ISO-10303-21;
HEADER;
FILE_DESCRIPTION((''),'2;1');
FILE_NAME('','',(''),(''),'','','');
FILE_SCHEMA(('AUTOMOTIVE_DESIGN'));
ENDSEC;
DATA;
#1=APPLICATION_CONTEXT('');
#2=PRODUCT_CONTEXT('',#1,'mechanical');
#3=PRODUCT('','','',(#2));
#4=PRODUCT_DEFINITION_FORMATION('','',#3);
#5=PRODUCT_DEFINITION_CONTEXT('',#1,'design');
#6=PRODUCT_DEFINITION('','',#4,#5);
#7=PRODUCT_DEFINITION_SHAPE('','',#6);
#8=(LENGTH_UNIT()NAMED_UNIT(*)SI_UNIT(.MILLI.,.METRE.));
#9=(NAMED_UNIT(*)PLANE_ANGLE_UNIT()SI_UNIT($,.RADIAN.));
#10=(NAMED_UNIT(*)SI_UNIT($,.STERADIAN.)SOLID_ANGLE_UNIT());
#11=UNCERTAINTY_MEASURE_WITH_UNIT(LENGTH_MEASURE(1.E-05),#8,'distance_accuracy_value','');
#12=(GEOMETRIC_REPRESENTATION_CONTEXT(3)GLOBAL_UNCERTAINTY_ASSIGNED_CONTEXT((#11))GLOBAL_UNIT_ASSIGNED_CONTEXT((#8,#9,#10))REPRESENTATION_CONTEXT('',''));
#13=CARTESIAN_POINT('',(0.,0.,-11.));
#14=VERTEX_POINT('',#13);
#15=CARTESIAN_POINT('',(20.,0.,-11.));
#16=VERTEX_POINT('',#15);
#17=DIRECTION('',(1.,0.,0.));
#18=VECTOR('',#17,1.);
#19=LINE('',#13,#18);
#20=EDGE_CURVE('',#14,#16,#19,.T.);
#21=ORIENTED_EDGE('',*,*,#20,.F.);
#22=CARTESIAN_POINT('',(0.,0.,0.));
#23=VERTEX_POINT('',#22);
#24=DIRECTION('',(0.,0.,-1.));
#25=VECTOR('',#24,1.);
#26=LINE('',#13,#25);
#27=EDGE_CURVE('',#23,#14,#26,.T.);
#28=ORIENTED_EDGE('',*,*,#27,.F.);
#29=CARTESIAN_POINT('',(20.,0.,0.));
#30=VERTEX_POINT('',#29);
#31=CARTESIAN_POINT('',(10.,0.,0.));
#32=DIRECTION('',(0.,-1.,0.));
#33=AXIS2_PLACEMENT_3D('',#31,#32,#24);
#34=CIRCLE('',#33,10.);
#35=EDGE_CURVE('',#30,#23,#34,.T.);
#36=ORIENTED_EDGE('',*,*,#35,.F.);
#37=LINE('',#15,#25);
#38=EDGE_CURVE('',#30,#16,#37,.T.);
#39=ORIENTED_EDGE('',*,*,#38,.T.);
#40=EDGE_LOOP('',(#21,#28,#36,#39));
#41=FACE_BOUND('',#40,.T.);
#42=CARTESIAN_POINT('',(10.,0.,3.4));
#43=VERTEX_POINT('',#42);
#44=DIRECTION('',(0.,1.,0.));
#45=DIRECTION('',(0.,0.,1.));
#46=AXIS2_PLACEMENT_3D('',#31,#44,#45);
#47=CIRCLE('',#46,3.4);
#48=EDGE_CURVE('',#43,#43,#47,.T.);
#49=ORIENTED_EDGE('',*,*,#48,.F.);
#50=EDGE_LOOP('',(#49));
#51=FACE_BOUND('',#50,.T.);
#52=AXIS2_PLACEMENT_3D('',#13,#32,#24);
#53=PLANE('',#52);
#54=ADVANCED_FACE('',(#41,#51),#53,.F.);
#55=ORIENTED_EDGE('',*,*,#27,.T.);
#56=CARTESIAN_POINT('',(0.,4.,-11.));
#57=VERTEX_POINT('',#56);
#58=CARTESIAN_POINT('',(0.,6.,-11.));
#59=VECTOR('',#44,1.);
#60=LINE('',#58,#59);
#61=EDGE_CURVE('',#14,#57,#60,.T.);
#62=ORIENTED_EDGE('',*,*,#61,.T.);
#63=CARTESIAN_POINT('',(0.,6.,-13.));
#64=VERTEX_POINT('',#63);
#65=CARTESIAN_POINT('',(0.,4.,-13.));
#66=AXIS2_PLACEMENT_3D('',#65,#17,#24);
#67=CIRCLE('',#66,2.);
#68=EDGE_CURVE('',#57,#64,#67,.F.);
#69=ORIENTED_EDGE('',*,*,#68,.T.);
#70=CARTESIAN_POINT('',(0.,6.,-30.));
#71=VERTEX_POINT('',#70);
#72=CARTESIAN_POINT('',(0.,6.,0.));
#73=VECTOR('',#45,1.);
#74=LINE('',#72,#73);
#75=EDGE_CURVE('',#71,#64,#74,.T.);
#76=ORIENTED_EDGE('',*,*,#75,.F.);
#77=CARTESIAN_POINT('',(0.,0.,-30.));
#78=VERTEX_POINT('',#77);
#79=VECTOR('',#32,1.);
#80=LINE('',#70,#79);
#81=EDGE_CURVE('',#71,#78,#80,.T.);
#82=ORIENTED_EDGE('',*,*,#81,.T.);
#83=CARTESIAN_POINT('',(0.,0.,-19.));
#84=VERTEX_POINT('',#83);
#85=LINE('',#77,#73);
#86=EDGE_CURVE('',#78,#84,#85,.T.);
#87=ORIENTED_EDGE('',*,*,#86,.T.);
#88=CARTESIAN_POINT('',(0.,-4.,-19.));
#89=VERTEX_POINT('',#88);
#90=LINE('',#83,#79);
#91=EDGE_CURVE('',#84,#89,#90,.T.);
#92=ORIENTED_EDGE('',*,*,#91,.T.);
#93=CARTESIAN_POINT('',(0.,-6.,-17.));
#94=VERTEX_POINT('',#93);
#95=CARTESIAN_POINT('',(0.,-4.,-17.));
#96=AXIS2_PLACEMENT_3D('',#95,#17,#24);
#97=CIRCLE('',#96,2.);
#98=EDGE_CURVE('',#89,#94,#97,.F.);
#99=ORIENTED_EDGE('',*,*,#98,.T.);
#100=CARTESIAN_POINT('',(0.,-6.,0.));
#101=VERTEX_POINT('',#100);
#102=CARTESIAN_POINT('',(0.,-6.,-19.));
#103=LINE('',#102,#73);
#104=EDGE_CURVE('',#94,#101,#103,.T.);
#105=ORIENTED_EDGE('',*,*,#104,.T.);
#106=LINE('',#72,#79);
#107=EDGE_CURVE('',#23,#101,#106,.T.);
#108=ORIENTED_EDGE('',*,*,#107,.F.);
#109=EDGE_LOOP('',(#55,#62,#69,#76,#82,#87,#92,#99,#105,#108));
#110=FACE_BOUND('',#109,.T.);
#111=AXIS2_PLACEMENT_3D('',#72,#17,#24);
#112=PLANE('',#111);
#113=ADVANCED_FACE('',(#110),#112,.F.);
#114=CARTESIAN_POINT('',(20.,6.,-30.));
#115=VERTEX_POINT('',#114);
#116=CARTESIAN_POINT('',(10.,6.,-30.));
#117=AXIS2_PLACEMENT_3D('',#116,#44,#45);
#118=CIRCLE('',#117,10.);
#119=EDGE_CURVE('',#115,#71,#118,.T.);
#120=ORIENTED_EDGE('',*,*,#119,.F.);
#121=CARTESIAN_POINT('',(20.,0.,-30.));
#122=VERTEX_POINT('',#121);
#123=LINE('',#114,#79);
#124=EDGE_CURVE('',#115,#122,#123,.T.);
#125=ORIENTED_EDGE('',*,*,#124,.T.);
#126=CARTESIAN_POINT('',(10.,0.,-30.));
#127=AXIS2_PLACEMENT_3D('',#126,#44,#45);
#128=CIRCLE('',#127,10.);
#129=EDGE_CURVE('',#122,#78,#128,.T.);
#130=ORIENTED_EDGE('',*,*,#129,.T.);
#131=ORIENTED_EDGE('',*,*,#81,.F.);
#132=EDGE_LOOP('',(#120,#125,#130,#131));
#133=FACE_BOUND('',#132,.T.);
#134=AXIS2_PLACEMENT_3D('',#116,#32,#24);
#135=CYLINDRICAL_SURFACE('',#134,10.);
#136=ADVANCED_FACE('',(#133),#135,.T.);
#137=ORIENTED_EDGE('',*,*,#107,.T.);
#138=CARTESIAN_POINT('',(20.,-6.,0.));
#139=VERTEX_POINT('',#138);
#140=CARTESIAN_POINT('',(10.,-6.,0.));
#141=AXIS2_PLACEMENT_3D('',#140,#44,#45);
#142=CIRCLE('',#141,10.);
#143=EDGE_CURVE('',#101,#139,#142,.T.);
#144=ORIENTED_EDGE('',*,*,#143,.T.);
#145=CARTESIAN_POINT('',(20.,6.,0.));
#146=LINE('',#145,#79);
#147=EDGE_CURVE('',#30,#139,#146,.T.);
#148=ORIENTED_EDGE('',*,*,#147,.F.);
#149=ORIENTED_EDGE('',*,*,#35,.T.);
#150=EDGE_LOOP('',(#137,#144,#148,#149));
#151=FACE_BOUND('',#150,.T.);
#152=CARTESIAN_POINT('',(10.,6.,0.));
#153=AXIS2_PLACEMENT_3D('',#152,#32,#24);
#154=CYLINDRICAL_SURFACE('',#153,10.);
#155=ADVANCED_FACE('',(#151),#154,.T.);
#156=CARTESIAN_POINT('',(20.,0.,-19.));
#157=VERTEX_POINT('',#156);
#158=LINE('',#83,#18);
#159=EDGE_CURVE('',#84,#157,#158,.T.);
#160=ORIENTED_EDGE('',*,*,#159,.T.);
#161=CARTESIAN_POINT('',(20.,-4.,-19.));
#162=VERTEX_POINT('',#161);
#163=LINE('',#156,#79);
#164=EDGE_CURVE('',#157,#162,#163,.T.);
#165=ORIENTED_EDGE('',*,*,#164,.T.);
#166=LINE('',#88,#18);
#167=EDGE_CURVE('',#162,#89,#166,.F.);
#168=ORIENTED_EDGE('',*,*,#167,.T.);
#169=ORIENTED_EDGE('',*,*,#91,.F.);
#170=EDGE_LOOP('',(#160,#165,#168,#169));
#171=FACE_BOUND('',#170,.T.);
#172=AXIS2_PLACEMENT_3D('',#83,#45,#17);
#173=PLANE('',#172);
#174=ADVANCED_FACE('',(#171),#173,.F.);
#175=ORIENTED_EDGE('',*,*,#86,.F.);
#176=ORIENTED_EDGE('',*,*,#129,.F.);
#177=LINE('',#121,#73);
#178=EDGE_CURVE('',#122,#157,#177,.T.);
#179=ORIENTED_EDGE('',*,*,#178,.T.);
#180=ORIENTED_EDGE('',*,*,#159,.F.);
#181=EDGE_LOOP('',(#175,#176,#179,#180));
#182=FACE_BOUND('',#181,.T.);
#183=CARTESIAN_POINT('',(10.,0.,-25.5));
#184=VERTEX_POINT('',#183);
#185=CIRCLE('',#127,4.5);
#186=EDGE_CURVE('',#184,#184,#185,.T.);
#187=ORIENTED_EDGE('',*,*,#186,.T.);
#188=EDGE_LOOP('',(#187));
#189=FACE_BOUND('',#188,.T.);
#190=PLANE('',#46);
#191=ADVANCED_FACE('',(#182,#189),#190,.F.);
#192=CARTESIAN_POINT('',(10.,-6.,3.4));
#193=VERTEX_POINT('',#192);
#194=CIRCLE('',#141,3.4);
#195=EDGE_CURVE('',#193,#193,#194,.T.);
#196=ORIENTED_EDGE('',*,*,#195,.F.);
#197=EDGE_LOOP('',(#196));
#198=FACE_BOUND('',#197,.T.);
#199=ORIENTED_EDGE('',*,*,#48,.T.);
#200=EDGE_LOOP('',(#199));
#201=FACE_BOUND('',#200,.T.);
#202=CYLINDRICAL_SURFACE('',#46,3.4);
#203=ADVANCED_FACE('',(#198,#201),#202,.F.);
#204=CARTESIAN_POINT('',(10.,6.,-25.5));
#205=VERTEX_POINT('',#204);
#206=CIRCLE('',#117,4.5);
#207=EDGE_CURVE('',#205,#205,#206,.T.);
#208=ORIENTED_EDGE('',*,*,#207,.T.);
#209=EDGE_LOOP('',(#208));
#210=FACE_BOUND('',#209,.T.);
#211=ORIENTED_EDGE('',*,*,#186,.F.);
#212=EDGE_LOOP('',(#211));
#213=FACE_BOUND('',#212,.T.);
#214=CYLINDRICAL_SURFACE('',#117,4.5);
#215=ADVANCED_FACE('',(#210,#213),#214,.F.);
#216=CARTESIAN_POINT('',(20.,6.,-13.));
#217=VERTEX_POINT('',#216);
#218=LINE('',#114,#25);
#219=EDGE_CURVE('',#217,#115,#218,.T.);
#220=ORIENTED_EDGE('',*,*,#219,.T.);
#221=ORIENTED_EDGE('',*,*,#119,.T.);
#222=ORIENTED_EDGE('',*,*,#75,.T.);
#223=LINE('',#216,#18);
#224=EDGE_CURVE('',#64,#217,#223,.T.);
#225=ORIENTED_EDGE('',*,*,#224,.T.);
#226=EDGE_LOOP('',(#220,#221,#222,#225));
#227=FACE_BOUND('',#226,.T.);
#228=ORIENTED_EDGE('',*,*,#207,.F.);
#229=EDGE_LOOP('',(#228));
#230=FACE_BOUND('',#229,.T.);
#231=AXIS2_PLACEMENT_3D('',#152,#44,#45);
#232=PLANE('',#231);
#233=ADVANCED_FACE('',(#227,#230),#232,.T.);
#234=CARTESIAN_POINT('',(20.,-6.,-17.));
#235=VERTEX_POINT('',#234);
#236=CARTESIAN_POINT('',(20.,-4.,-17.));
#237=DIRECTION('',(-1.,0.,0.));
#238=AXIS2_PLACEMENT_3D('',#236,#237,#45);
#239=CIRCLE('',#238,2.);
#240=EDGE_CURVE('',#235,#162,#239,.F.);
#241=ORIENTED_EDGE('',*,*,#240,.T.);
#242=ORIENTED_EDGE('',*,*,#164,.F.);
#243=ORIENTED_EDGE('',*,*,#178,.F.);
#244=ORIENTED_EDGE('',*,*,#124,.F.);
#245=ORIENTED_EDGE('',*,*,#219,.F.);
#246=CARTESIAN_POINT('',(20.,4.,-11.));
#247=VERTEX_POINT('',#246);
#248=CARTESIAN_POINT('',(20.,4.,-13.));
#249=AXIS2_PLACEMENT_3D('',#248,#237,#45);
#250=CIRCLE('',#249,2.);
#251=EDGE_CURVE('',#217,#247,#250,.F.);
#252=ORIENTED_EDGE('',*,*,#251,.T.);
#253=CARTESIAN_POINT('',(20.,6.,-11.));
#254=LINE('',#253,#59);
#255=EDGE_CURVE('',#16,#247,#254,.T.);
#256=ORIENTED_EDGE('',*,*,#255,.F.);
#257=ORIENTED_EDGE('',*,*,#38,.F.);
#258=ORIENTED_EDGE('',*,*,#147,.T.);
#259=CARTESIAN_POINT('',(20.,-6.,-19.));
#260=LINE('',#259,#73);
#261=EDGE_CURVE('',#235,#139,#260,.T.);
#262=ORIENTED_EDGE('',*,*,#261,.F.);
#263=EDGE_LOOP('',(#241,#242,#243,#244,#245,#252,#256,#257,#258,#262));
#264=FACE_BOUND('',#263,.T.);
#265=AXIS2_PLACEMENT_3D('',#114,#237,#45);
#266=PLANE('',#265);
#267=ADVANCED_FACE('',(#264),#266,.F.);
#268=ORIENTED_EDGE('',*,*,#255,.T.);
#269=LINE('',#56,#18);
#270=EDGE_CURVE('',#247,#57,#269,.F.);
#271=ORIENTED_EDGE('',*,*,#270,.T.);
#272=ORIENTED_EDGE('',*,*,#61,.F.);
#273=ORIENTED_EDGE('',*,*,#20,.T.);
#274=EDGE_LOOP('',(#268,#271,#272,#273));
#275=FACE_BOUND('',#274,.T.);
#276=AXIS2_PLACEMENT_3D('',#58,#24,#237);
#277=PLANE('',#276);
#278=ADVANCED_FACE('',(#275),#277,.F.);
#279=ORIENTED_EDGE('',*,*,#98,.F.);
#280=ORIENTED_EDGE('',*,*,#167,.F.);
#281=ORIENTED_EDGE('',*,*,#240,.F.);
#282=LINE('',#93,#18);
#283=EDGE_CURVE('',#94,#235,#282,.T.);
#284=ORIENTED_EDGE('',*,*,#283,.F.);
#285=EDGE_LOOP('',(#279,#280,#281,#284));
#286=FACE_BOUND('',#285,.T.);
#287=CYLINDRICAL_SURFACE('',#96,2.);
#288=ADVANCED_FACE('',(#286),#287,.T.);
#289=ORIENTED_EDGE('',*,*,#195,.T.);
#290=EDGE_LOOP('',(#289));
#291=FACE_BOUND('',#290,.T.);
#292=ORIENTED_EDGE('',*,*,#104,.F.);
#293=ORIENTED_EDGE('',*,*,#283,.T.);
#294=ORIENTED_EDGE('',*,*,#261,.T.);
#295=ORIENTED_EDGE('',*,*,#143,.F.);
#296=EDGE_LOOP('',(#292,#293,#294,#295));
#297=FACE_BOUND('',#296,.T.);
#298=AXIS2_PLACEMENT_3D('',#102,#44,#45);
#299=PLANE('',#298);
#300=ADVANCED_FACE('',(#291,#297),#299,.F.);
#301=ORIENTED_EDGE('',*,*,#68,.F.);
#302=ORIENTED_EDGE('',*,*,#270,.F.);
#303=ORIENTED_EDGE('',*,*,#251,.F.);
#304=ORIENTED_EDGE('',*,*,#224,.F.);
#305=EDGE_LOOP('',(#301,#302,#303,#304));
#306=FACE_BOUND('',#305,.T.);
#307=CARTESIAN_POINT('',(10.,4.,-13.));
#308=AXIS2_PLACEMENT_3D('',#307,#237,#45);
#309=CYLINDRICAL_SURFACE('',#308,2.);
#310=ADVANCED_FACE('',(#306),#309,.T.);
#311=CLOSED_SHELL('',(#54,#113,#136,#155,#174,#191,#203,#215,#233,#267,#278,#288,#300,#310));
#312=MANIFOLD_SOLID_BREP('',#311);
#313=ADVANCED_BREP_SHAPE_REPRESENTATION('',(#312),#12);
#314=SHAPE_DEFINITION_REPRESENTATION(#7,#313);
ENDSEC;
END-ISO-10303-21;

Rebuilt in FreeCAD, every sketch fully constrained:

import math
import FreeCAD as App
import Part
import Sketcher
Q = App.Units.Quantity


def edges_at(feature, points):
    """Names of the edges that pass closest to the given points."""
    edges = feature.Shape.Edges
    near = lambda p: min(range(len(edges)), key=lambda i: edges[i].distToShape(Part.Vertex(*p))[0])
    return sorted({f"Edge{near(p) + 1}" for p in points})

doc = App.newDocument("Part")
body = doc.addObject("PartDesign::Body", "Body")

# Sketch on XZ plane
sketch1 = doc.addObject("Sketcher::SketchObject", "Sketch")
body.addObject(sketch1)
sketch1.AttachmentSupport = (doc.XZ_Plane, [""])
sketch1.MapMode = "FlatFace"
sketch1.addGeometry([
    Part.LineSegment(App.Vector(0, -30, 0), App.Vector(0, 0, 0)),
    Part.ArcOfCircle(Part.Circle(App.Vector(10, 0, 0), App.Vector(0, 0, 1), 10), math.radians(0), math.radians(180)),
    Part.LineSegment(App.Vector(20, 0, 0), App.Vector(20, -30, 0)),
    Part.ArcOfCircle(Part.Circle(App.Vector(10, -30, 0), App.Vector(0, 0, 1), 10), math.radians(180), math.radians(360)),
], False)
sketch1.addConstraint([
    Sketcher.Constraint("Tangent", 0, 2, 1, 2),
    Sketcher.Constraint("Tangent", 1, 1, 2, 1),
    Sketcher.Constraint("Tangent", 2, 2, 3, 2),
    Sketcher.Constraint("Tangent", 3, 1, 0, 1),
    Sketcher.Constraint("Vertical", 0),
    Sketcher.Constraint("Vertical", 2),
    Sketcher.Constraint("Coincident", 0, 2, -1, 1),
    Sketcher.Constraint("Radius", 1, Q("10 mm")),
    Sketcher.Constraint("DistanceY", 0, 1, 0, 2, Q("30 mm")),
])
pad1 = doc.addObject("PartDesign::Pad", "Pad")
body.addObject(pad1)
pad1.Profile = sketch1
pad1.Length = 6
pad1.Reversed = True

# Sketch on XZ plane
sketch2 = doc.addObject("Sketcher::SketchObject", "Sketch001")
body.addObject(sketch2)
sketch2.AttachmentSupport = (doc.XZ_Plane, [""])
sketch2.MapMode = "FlatFace"
sketch2.addGeometry([
    Part.LineSegment(App.Vector(0, -30, 0), App.Vector(20, -30, 0)),
    Part.LineSegment(App.Vector(20, -30, 0), App.Vector(20, 0, 0)),
    Part.ArcOfCircle(Part.Circle(App.Vector(10, 0, 0), App.Vector(0, 0, 1), 10), math.radians(0), math.radians(180)),
    Part.LineSegment(App.Vector(0, 0, 0), App.Vector(0, -30, 0)),
], False)
sketch2.addConstraint([
    Sketcher.Constraint("Coincident", 0, 2, 1, 1),
    Sketcher.Constraint("Tangent", 1, 2, 2, 1),
    Sketcher.Constraint("Tangent", 2, 2, 3, 1),
    Sketcher.Constraint("Coincident", 3, 2, 0, 1),
    Sketcher.Constraint("Horizontal", 0),
    Sketcher.Constraint("Vertical", 1),
    Sketcher.Constraint("Vertical", 3),
    Sketcher.Constraint("Coincident", 2, 2, -1, 1),
    Sketcher.Constraint("Radius", 2, Q("10 mm")),
    Sketcher.Constraint("DistanceY", 1, 1, 1, 2, Q("30 mm")),
])
pad2 = doc.addObject("PartDesign::Pad", "Pad001")
body.addObject(pad2)
pad2.Profile = sketch2
pad2.Length = 12

# Sketch on YZ plane
sketch3 = doc.addObject("Sketcher::SketchObject", "Sketch002")
body.addObject(sketch3)
sketch3.AttachmentSupport = (doc.YZ_Plane, [""])
sketch3.MapMode = "FlatFace"
sketch3.AttachmentOffset = App.Placement(App.Vector(0, 0, 20), App.Rotation())
sketch3.addGeometry([
    Part.LineSegment(App.Vector(6, 10, 0), App.Vector(0, 10, 0)),  # 0
    Part.LineSegment(App.Vector(0, 10, 0), App.Vector(0, -11, 0)),  # 1
    Part.LineSegment(App.Vector(0, -11, 0), App.Vector(6, -11, 0)),  # 2
    Part.LineSegment(App.Vector(6, -11, 0), App.Vector(6, 10, 0)),  # 3
    Part.LineSegment(App.Vector(0, -30, 0), App.Vector(0, -19, 0)),  # 4
    Part.LineSegment(App.Vector(0, -19, 0), App.Vector(-6, -19, 0)),  # 5
    Part.LineSegment(App.Vector(-6, -19, 0), App.Vector(-6, 10, 0)),  # 6
    Part.LineSegment(App.Vector(-6, 10, 0), App.Vector(-12, 10, 0)),  # 7
    Part.LineSegment(App.Vector(-12, 10, 0), App.Vector(-12, -30, 0)),  # 8
    Part.LineSegment(App.Vector(-12, -30, 0), App.Vector(0, -30, 0)),  # 9
], False)
sketch3.addConstraint([
    Sketcher.Constraint("Coincident", 0, 2, 1, 1),
    Sketcher.Constraint("Coincident", 1, 2, 2, 1),
    Sketcher.Constraint("Coincident", 2, 2, 3, 1),
    Sketcher.Constraint("Coincident", 3, 2, 0, 1),
    Sketcher.Constraint("Coincident", 4, 2, 5, 1),
    Sketcher.Constraint("Coincident", 5, 2, 6, 1),
    Sketcher.Constraint("Coincident", 6, 2, 7, 1),
    Sketcher.Constraint("Coincident", 7, 2, 8, 1),
    Sketcher.Constraint("Coincident", 8, 2, 9, 1),
    Sketcher.Constraint("Coincident", 9, 2, 4, 1),
    Sketcher.Constraint("Horizontal", 0),
    Sketcher.Constraint("Vertical", 1),
    Sketcher.Constraint("Horizontal", 2),
    Sketcher.Constraint("Vertical", 3),
    Sketcher.Constraint("Vertical", 4),
    Sketcher.Constraint("Horizontal", 5),
    Sketcher.Constraint("Vertical", 6),
    Sketcher.Constraint("Horizontal", 7),
    Sketcher.Constraint("Vertical", 8),
    Sketcher.Constraint("Horizontal", 9),
    Sketcher.Constraint("Symmetric", 3, 2, 6, 2, -2),
    Sketcher.Constraint("PointOnObject", 0, 2, -2),
    Sketcher.Constraint("PointOnObject", 4, 2, -2),
    Sketcher.Constraint("Equal", 5, 7),
    Sketcher.Constraint("DistanceX", 0, 2, 0, 1, Q("6 mm")),
    Sketcher.Constraint("DistanceY", 1, 2, 1, 1, Q("21 mm")),
    Sketcher.Constraint("DistanceY", 4, 1, 4, 2, Q("11 mm")),
    Sketcher.Constraint("DistanceY", 6, 1, 6, 2, Q("29 mm")),
    Sketcher.Constraint("DistanceY", -1, 1, 0, 2, Q("10 mm")),
])
pocket1 = doc.addObject("PartDesign::Pocket", "Pocket")
body.addObject(pocket1)
pocket1.Profile = sketch3
pocket1.Type = "ThroughAll"

# Sketch on XZ plane
sketch4 = doc.addObject("Sketcher::SketchObject", "Sketch003")
body.addObject(sketch4)
sketch4.AttachmentSupport = (doc.XZ_Plane, [""])
sketch4.MapMode = "FlatFace"
sketch4.AttachmentOffset = App.Placement(App.Vector(0, 0, -6), App.Rotation())
sketch4.addGeometry(Part.Circle(App.Vector(10, -30, 0), App.Vector(0, 0, 1), 4.5), False)
sketch4.addConstraint([
    Sketcher.Constraint("Diameter", 0, Q("9 mm")),
    Sketcher.Constraint("DistanceX", -1, 1, 0, 3, Q("10 mm")),
    Sketcher.Constraint("DistanceY", 0, 3, -1, 1, Q("30 mm")),
])
doc.recompute()
hole = doc.addObject("PartDesign::Hole", "Hole")
body.addObject(hole)
hole.Profile = sketch4
hole.ThreadType = "None"
hole.Diameter = 9
hole.DepthType = "ThroughAll"
hole.Reversed = True

# Sketch on XZ plane
sketch5 = doc.addObject("Sketcher::SketchObject", "Sketch004")
body.addObject(sketch5)
sketch5.AttachmentSupport = (doc.XZ_Plane, [""])
sketch5.MapMode = "FlatFace"
sketch5.addGeometry(Part.Circle(App.Vector(10, 0, 0), App.Vector(0, 0, 1), 3.4), False)
sketch5.addConstraint([
    Sketcher.Constraint("PointOnObject", 0, 3, -1),
    Sketcher.Constraint("Diameter", 0, Q("6.8 mm")),
    Sketcher.Constraint("DistanceX", -1, 1, 0, 3, Q("10 mm")),
])
doc.recompute()
hole2 = doc.addObject("PartDesign::Hole", "Hole001")
body.addObject(hole2)
hole2.Profile = sketch5
hole2.ThreadType = "None"
hole2.Diameter = 6.8
hole2.DepthType = "ThroughAll"
hole2.Reversed = True
doc.recompute()

fillet = doc.addObject("PartDesign::Fillet", "Fillet")
body.addObject(fillet)
fillet.Base = (hole2, edges_at(hole2, [(10, -6, -19), (10, 6, -11)]))
fillet.Radius = 2

doc.recompute()
